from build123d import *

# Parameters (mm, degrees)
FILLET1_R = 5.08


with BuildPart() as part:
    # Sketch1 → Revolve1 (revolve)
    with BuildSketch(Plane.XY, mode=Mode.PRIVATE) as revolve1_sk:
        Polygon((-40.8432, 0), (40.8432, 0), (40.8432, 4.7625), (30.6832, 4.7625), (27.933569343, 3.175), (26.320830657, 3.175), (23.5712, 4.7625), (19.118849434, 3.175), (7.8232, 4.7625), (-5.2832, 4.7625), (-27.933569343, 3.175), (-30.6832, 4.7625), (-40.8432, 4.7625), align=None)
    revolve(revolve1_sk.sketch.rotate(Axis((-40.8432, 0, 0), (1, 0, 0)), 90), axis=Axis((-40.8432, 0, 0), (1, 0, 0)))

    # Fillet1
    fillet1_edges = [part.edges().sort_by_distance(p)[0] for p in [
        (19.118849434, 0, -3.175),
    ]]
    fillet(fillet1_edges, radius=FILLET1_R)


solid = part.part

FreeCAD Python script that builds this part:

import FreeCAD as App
import Part
import Sketcher
Q = App.Units.Quantity


def edges_at(feature, points):
    """Names of the edges that pass closest to the given points."""
    edges = feature.Shape.Edges
    near = lambda p: min(range(len(edges)), key=lambda i: edges[i].distToShape(Part.Vertex(*p))[0])
    return sorted({f"Edge{near(p) + 1}" for p in points})


def add_polygon(sketch, points):
    """Adds a closed chain of lines whose ends are joined by coincident constraints."""
    first, n = sketch.GeometryCount, len(points)
    for a, b in zip(points, points[1:] + points[:1]):
        sketch.addGeometry(Part.LineSegment(App.Vector(*a, 0), App.Vector(*b, 0)), False)
    for i in range(n):
        sketch.addConstraint(Sketcher.Constraint("Coincident", first + i, 2, first + (i + 1) % n, 1))

doc = App.newDocument("Part")
body = doc.addObject("PartDesign::Body", "Body")

sketch1 = doc.addObject("Sketcher::SketchObject", "Sketch")
body.addObject(sketch1)
sketch1.AttachmentSupport = (doc.XY_Plane, [""])
sketch1.MapMode = "FlatFace"
add_polygon(sketch1, [(-40.8, 0), (40.8, 0), (40.8, 4.8), (30.7, 4.8), (27.9, 3.2), (26.3, 3.2), (23.6, 4.8), (19.1, 3.2), (7.8, 4.8), (-5.3, 4.8), (-27.9, 3.2), (-30.7, 4.8), (-40.8, 4.8)])
sketch1.addConstraint(Sketcher.Constraint("Horizontal", 0))
sketch1.addConstraint(Sketcher.Constraint("Vertical", 1))
sketch1.addConstraint(Sketcher.Constraint("Horizontal", 2))
sketch1.addConstraint(Sketcher.Constraint("Horizontal", 4))
sketch1.addConstraint(Sketcher.Constraint("Horizontal", 8))
sketch1.addConstraint(Sketcher.Constraint("Horizontal", 11))
sketch1.addConstraint(Sketcher.Constraint("Vertical", 12))
sketch1.addConstraint(Sketcher.Constraint("Symmetric", 0, 2, 12, 2, -1, 1))
sketch1.addConstraint(Sketcher.Constraint("Symmetric", 3, 2, 9, 2, -2))
sketch1.addConstraint(Sketcher.Constraint("Symmetric", 2, 2, 10, 2, -2))
sketch1.addConstraint(Sketcher.Constraint("Parallel", 5, 10))
sketch1.addConstraint(Sketcher.Constraint("Horizontal", 2, 2, 5, 2))
sketch1.addConstraint(Sketcher.Constraint("Horizontal", 4, 2, 6, 2))
sketch1.addConstraint(Sketcher.Constraint("Horizontal", 5, 2, 7, 2))
sketch1.addConstraint(Sketcher.Constraint("DistanceX", 2, 2, 2, 1, Q("0.4 in")))
sketch1.addConstraint(Sketcher.Constraint("Angle", 3, Q("-150 deg")))
sketch1.addConstraint(Sketcher.Constraint("Angle", 7, Q("172 deg")))
sketch1.addConstraint(Sketcher.Constraint("DistanceX", 10, 2, 8, 2, Q("1 in")))
sketch1.addConstraint(Sketcher.Constraint("DistanceX", 7, 2, 2, 2, Q("0.9 in")))
sketch1.addConstraint(Sketcher.Constraint("DistanceX", 0, 1, 0, 2, Q("3.216 in")))
sketch1.addConstraint(Sketcher.Constraint("DistanceY", 1, 1, 1, 2, Q("0.1875 in")))
sketch1.addConstraint(Sketcher.Constraint("DistanceX", 5, 2, 2, 2, Q("0.28 in")))
sketch1.addConstraint(Sketcher.Constraint("Distance", 3, Q("0.125 in")))
revolution = doc.addObject("PartDesign::Revolution", "Revolution")
body.addObject(revolution)
revolution.Profile = sketch1
revolution.ReferenceAxis = (sketch1, ["H_Axis"])
revolution.Angle = 360
doc.recompute()

fillet = doc.addObject("PartDesign::Fillet", "Fillet")
body.addObject(fillet)
fillet.Base = (revolution, edges_at(revolution, [(19.119, 0, -3.175)]))
fillet.Radius = Q("0.2 in")

doc.recompute()
